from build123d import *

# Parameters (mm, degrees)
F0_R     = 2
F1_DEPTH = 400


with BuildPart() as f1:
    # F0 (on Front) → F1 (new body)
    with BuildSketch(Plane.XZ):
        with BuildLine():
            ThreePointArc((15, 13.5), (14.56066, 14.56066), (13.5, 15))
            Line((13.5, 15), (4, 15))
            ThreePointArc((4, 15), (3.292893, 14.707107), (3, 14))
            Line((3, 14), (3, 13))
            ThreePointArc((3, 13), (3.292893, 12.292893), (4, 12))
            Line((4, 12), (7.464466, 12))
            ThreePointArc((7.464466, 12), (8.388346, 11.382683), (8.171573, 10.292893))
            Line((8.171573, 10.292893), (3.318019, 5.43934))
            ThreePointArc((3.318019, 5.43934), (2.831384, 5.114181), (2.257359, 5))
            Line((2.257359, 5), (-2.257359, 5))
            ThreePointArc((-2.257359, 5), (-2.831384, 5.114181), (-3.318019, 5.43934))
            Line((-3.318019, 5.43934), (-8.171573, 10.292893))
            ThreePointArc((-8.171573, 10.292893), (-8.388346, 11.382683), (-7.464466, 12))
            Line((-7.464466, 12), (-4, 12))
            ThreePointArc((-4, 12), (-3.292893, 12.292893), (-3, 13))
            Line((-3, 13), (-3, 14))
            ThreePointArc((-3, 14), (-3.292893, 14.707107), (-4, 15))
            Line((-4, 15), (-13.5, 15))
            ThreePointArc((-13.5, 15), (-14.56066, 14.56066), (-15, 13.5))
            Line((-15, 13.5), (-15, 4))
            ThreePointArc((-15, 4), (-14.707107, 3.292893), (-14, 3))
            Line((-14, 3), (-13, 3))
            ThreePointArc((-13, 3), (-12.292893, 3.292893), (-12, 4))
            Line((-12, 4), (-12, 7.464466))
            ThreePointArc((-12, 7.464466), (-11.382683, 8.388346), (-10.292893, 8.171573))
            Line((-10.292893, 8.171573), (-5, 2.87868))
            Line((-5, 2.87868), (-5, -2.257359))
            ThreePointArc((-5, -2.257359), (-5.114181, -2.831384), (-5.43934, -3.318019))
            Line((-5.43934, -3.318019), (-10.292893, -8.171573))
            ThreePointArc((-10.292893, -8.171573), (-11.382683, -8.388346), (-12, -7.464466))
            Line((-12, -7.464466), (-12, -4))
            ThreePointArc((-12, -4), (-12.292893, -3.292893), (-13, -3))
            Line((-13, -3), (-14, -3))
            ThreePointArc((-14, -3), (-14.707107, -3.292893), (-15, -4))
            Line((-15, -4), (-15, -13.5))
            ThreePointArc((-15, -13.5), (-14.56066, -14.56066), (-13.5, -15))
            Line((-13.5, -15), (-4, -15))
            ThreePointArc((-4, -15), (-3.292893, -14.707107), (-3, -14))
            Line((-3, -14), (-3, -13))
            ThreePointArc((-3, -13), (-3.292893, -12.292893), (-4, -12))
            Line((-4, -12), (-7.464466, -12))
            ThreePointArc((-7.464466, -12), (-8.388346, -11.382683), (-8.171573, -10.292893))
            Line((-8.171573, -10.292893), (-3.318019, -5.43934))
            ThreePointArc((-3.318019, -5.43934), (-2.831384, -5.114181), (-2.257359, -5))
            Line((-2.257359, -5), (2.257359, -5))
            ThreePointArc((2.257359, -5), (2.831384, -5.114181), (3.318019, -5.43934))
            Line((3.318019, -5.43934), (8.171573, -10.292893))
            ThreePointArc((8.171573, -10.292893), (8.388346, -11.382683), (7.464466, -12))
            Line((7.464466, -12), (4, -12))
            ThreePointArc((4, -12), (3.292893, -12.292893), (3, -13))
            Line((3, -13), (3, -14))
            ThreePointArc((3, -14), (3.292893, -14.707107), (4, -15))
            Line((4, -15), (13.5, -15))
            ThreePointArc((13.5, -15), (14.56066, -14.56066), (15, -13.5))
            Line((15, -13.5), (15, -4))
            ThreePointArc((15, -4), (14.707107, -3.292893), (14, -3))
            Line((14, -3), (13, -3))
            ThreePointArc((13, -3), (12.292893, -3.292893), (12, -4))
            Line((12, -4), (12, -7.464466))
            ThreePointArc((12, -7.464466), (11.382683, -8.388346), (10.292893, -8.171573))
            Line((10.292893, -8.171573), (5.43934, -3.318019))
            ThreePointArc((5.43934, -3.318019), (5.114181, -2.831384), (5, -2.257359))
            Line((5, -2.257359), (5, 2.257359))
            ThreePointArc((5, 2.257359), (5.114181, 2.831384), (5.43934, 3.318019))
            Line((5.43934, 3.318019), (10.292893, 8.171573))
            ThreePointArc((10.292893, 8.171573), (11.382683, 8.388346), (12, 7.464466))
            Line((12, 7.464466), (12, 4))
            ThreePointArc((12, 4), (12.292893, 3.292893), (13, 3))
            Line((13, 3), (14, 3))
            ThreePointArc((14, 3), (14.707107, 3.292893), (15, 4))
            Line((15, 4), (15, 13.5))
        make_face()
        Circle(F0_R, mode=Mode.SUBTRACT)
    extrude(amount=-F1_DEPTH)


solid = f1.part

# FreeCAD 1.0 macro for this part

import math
import FreeCAD as App
import Part
import Sketcher
from FreeCAD import Vector

doc = App.newDocument("Part")
body = doc.addObject("PartDesign::Body", "Body")

# Sketch on XZ plane
sketch1 = doc.addObject("Sketcher::SketchObject", "Sketch")
body.addObject(sketch1)
sketch1.AttachmentSupport = (doc.XZ_Plane, [""])
sketch1.MapMode = "FlatFace"
sketch1.addGeometry([
    Part.ArcOfCircle(Part.Circle(Vector(13.5, 13.5, 0), Vector(0, 0, 1), 1.5), math.radians(0), math.radians(90)),  # 0
    Part.LineSegment(Vector(13.5, 15, 0), Vector(4, 15, 0)),  # 1
    Part.ArcOfCircle(Part.Circle(Vector(4, 14, 0), Vector(0, 0, 1), 1), math.radians(90), math.radians(180)),  # 2
    Part.LineSegment(Vector(3, 14, 0), Vector(3, 13, 0)),  # 3
    Part.ArcOfCircle(Part.Circle(Vector(4, 13, 0), Vector(0, 0, 1), 1), math.radians(180), math.radians(270)),  # 4
    Part.LineSegment(Vector(4, 12, 0), Vector(7.5, 12, 0)),  # 5
    Part.ArcOfCircle(Part.Circle(Vector(7.5, 11, 0), Vector(0, 0, 1), 1), math.radians(-45), math.radians(90)),  # 6
    Part.LineSegment(Vector(8.2, 10.3, 0), Vector(3.3, 5.4, 0)),  # 7
    Part.ArcOfCircle(Part.Circle(Vector(2.3, 6.5, 0), Vector(0, 0, 1), 1.5), math.radians(-90), math.radians(-45)),  # 8
    Part.LineSegment(Vector(2.3, 5, 0), Vector(-2.3, 5, 0)),  # 9
    Part.ArcOfCircle(Part.Circle(Vector(-2.3, 6.5, 0), Vector(0, 0, 1), 1.5), math.radians(-135), math.radians(-90)),  # 10
    Part.LineSegment(Vector(-3.3, 5.4, 0), Vector(-8.2, 10.3, 0)),  # 11
    Part.ArcOfCircle(Part.Circle(Vector(-7.5, 11, 0), Vector(0, 0, 1), 1), math.radians(90), math.radians(225)),  # 12
    Part.LineSegment(Vector(-7.5, 12, 0), Vector(-4, 12, 0)),  # 13
    Part.ArcOfCircle(Part.Circle(Vector(-4, 13, 0), Vector(0, 0, 1), 1), math.radians(-90), math.radians(0)),  # 14
    Part.LineSegment(Vector(-3, 13, 0), Vector(-3, 14, 0)),  # 15
    Part.ArcOfCircle(Part.Circle(Vector(-4, 14, 0), Vector(0, 0, 1), 1), math.radians(0), math.radians(90)),  # 16
    Part.LineSegment(Vector(-4, 15, 0), Vector(-13.5, 15, 0)),  # 17
    Part.ArcOfCircle(Part.Circle(Vector(-13.5, 13.5, 0), Vector(0, 0, 1), 1.5), math.radians(90), math.radians(180)),  # 18
    Part.LineSegment(Vector(-15, 13.5, 0), Vector(-15, 4, 0)),  # 19
    Part.ArcOfCircle(Part.Circle(Vector(-14, 4, 0), Vector(0, 0, 1), 1), math.radians(180), math.radians(270)),  # 20
    Part.LineSegment(Vector(-14, 3, 0), Vector(-13, 3, 0)),  # 21
    Part.ArcOfCircle(Part.Circle(Vector(-13, 4, 0), Vector(0, 0, 1), 1), math.radians(-90), math.radians(0)),  # 22
    Part.LineSegment(Vector(-12, 4, 0), Vector(-12, 7.5, 0)),  # 23
    Part.ArcOfCircle(Part.Circle(Vector(-11, 7.5, 0), Vector(0, 0, 1), 1), math.radians(45), math.radians(180)),  # 24
    Part.LineSegment(Vector(-10.3, 8.2, 0), Vector(-5, 2.9, 0)),  # 25
    Part.LineSegment(Vector(-5, 2.9, 0), Vector(-5, -2.3, 0)),  # 26
    Part.ArcOfCircle(Part.Circle(Vector(-6.5, -2.3, 0), Vector(0, 0, 1), 1.5), math.radians(-45), math.radians(0)),  # 27
    Part.LineSegment(Vector(-5.4, -3.3, 0), Vector(-10.3, -8.2, 0)),  # 28
    Part.ArcOfCircle(Part.Circle(Vector(-11, -7.5, 0), Vector(0, 0, 1), 1), math.radians(180), math.radians(315)),  # 29
    Part.LineSegment(Vector(-12, -7.5, 0), Vector(-12, -4, 0)),  # 30
    Part.ArcOfCircle(Part.Circle(Vector(-13, -4, 0), Vector(0, 0, 1), 1), math.radians(0), math.radians(90)),  # 31
    Part.LineSegment(Vector(-13, -3, 0), Vector(-14, -3, 0)),  # 32
    Part.ArcOfCircle(Part.Circle(Vector(-14, -4, 0), Vector(0, 0, 1), 1), math.radians(90), math.radians(180)),  # 33
    Part.LineSegment(Vector(-15, -4, 0), Vector(-15, -13.5, 0)),  # 34
    Part.ArcOfCircle(Part.Circle(Vector(-13.5, -13.5, 0), Vector(0, 0, 1), 1.5), math.radians(-180), math.radians(-90)),  # 35
    Part.LineSegment(Vector(-13.5, -15, 0), Vector(-4, -15, 0)),  # 36
    Part.ArcOfCircle(Part.Circle(Vector(-4, -14, 0), Vector(0, 0, 1), 1), math.radians(-90), math.radians(0)),  # 37
    Part.LineSegment(Vector(-3, -14, 0), Vector(-3, -13, 0)),  # 38
    Part.ArcOfCircle(Part.Circle(Vector(-4, -13, 0), Vector(0, 0, 1), 1), math.radians(0), math.radians(90)),  # 39
    Part.LineSegment(Vector(-4, -12, 0), Vector(-7.5, -12, 0)),  # 40
    Part.ArcOfCircle(Part.Circle(Vector(-7.5, -11, 0), Vector(0, 0, 1), 1), math.radians(135), math.radians(270)),  # 41
    Part.LineSegment(Vector(-8.2, -10.3, 0), Vector(-3.3, -5.4, 0)),  # 42
    Part.ArcOfCircle(Part.Circle(Vector(-2.3, -6.5, 0), Vector(0, 0, 1), 1.5), math.radians(90), math.radians(135)),  # 43
    Part.LineSegment(Vector(-2.3, -5, 0), Vector(2.3, -5, 0)),  # 44
    Part.ArcOfCircle(Part.Circle(Vector(2.3, -6.5, 0), Vector(0, 0, 1), 1.5), math.radians(45), math.radians(90)),  # 45
    Part.LineSegment(Vector(3.3, -5.4, 0), Vector(8.2, -10.3, 0)),  # 46
    Part.ArcOfCircle(Part.Circle(Vector(7.5, -11, 0), Vector(0, 0, 1), 1), math.radians(-90), math.radians(45)),  # 47
    Part.LineSegment(Vector(7.5, -12, 0), Vector(4, -12, 0)),  # 48
    Part.ArcOfCircle(Part.Circle(Vector(4, -13, 0), Vector(0, 0, 1), 1), math.radians(90), math.radians(180)),  # 49
    Part.LineSegment(Vector(3, -13, 0), Vector(3, -14, 0)),  # 50
    Part.ArcOfCircle(Part.Circle(Vector(4, -14, 0), Vector(0, 0, 1), 1), math.radians(180), math.radians(270)),  # 51
    Part.LineSegment(Vector(4, -15, 0), Vector(13.5, -15, 0)),  # 52
    Part.ArcOfCircle(Part.Circle(Vector(13.5, -13.5, 0), Vector(0, 0, 1), 1.5), math.radians(-90), math.radians(0)),  # 53
    Part.LineSegment(Vector(15, -13.5, 0), Vector(15, -4, 0)),  # 54
    Part.ArcOfCircle(Part.Circle(Vector(14, -4, 0), Vector(0, 0, 1), 1), math.radians(0), math.radians(90)),  # 55
    Part.LineSegment(Vector(14, -3, 0), Vector(13, -3, 0)),  # 56
    Part.ArcOfCircle(Part.Circle(Vector(13, -4, 0), Vector(0, 0, 1), 1), math.radians(90), math.radians(180)),  # 57
    Part.LineSegment(Vector(12, -4, 0), Vector(12, -7.5, 0)),  # 58
    Part.ArcOfCircle(Part.Circle(Vector(11, -7.5, 0), Vector(0, 0, 1), 1), math.radians(-135), math.radians(0)),  # 59
    Part.LineSegment(Vector(10.3, -8.2, 0), Vector(5.4, -3.3, 0)),  # 60
    Part.ArcOfCircle(Part.Circle(Vector(6.5, -2.3, 0), Vector(0, 0, 1), 1.5), math.radians(-180), math.radians(-135)),  # 61
    Part.LineSegment(Vector(5, -2.3, 0), Vector(5, 2.3, 0)),  # 62
    Part.ArcOfCircle(Part.Circle(Vector(6.5, 2.3, 0), Vector(0, 0, 1), 1.5), math.radians(135), math.radians(180)),  # 63
    Part.LineSegment(Vector(5.4, 3.3, 0), Vector(10.3, 8.2, 0)),  # 64
    Part.ArcOfCircle(Part.Circle(Vector(11, 7.5, 0), Vector(0, 0, 1), 1), math.radians(0), math.radians(135)),  # 65
    Part.LineSegment(Vector(12, 7.5, 0), Vector(12, 4, 0)),  # 66
    Part.ArcOfCircle(Part.Circle(Vector(13, 4, 0), Vector(0, 0, 1), 1), math.radians(180), math.radians(270)),  # 67
    Part.LineSegment(Vector(13, 3, 0), Vector(14, 3, 0)),  # 68
    Part.ArcOfCircle(Part.Circle(Vector(14, 4, 0), Vector(0, 0, 1), 1), math.radians(-90), math.radians(0)),  # 69
    Part.LineSegment(Vector(15, 4, 0), Vector(15, 13.5, 0)),  # 70
    Part.Circle(Vector(0, 0, 0), Vector(0, 0, 1), 2),  # 71
], False)
sketch1.addConstraint([
    Sketcher.Constraint("Tangent", 0, 2, 1, 1),
    Sketcher.Constraint("Tangent", 1, 2, 2, 1),
    Sketcher.Constraint("Tangent", 2, 2, 3, 1),
    Sketcher.Constraint("Tangent", 3, 2, 4, 1),
    Sketcher.Constraint("Tangent", 4, 2, 5, 1),
    Sketcher.Constraint("Tangent", 5, 2, 6, 2),
    Sketcher.Constraint("Tangent", 6, 1, 7, 1),
    Sketcher.Constraint("Tangent", 7, 2, 8, 2),
    Sketcher.Constraint("Tangent", 8, 1, 9, 1),
    Sketcher.Constraint("Tangent", 9, 2, 10, 2),
    Sketcher.Constraint("Tangent", 10, 1, 11, 1),
    Sketcher.Constraint("Tangent", 11, 2, 12, 2),
    Sketcher.Constraint("Tangent", 12, 1, 13, 1),
    Sketcher.Constraint("Tangent", 13, 2, 14, 1),
    Sketcher.Constraint("Tangent", 14, 2, 15, 1),
    Sketcher.Constraint("Tangent", 15, 2, 16, 1),
    Sketcher.Constraint("Tangent", 16, 2, 17, 1),
    Sketcher.Constraint("Tangent", 17, 2, 18, 1),
    Sketcher.Constraint("Tangent", 18, 2, 19, 1),
    Sketcher.Constraint("Tangent", 19, 2, 20, 1),
    Sketcher.Constraint("Tangent", 20, 2, 21, 1),
    Sketcher.Constraint("Tangent", 21, 2, 22, 1),
    Sketcher.Constraint("Tangent", 22, 2, 23, 1),
    Sketcher.Constraint("Tangent", 23, 2, 24, 2),
    Sketcher.Constraint("Tangent", 24, 1, 25, 1),
    Sketcher.Constraint("Coincident", 25, 2, 26, 1),
    Sketcher.Constraint("Tangent", 26, 2, 27, 2),
    Sketcher.Constraint("Tangent", 27, 1, 28, 1),
    Sketcher.Constraint("Tangent", 28, 2, 29, 2),
    Sketcher.Constraint("Tangent", 29, 1, 30, 1),
    Sketcher.Constraint("Tangent", 30, 2, 31, 1),
    Sketcher.Constraint("Tangent", 31, 2, 32, 1),
    Sketcher.Constraint("Tangent", 32, 2, 33, 1),
    Sketcher.Constraint("Tangent", 33, 2, 34, 1),
    Sketcher.Constraint("Tangent", 34, 2, 35, 1),
    Sketcher.Constraint("Tangent", 35, 2, 36, 1),
    Sketcher.Constraint("Tangent", 36, 2, 37, 1),
    Sketcher.Constraint("Tangent", 37, 2, 38, 1),
    Sketcher.Constraint("Tangent", 38, 2, 39, 1),
    Sketcher.Constraint("Tangent", 39, 2, 40, 1),
    Sketcher.Constraint("Tangent", 40, 2, 41, 2),
    Sketcher.Constraint("Tangent", 41, 1, 42, 1),
    Sketcher.Constraint("Tangent", 42, 2, 43, 2),
    Sketcher.Constraint("Tangent", 43, 1, 44, 1),
    Sketcher.Constraint("Tangent", 44, 2, 45, 2),
    Sketcher.Constraint("Tangent", 45, 1, 46, 1),
    Sketcher.Constraint("Tangent", 46, 2, 47, 2),
    Sketcher.Constraint("Tangent", 47, 1, 48, 1),
    Sketcher.Constraint("Tangent", 48, 2, 49, 1),
    Sketcher.Constraint("Tangent", 49, 2, 50, 1),
    Sketcher.Constraint("Tangent", 50, 2, 51, 1),
    Sketcher.Constraint("Tangent", 51, 2, 52, 1),
    Sketcher.Constraint("Tangent", 52, 2, 53, 1),
    Sketcher.Constraint("Tangent", 53, 2, 54, 1),
    Sketcher.Constraint("Tangent", 54, 2, 55, 1),
    Sketcher.Constraint("Tangent", 55, 2, 56, 1),
    Sketcher.Constraint("Tangent", 56, 2, 57, 1),
    Sketcher.Constraint("Tangent", 57, 2, 58, 1),
    Sketcher.Constraint("Tangent", 58, 2, 59, 2),
    Sketcher.Constraint("Tangent", 59, 1, 60, 1),
    Sketcher.Constraint("Tangent", 60, 2, 61, 2),
    Sketcher.Constraint("Tangent", 61, 1, 62, 1),
    Sketcher.Constraint("Tangent", 62, 2, 63, 2),
    Sketcher.Constraint("Tangent", 63, 1, 64, 1),
    Sketcher.Constraint("Tangent", 64, 2, 65, 2),
    Sketcher.Constraint("Tangent", 65, 1, 66, 1),
    Sketcher.Constraint("Tangent", 66, 2, 67, 1),
    Sketcher.Constraint("Tangent", 67, 2, 68, 1),
    Sketcher.Constraint("Tangent", 68, 2, 69, 1),
    Sketcher.Constraint("Tangent", 69, 2, 70, 1),
    Sketcher.Constraint("Tangent", 70, 2, 0, 1),
    Sketcher.Constraint("Horizontal", 1),
    Sketcher.Constraint("Vertical", 3),
    Sketcher.Constraint("Horizontal", 5),
    Sketcher.Constraint("Horizontal", 9),
    Sketcher.Constraint("Horizontal", 13),
    Sketcher.Constraint("Vertical", 15),
    Sketcher.Constraint("Horizontal", 17),
    Sketcher.Constraint("Vertical", 19),
    Sketcher.Constraint("Horizontal", 21),
    Sketcher.Constraint("Vertical", 23),
    Sketcher.Constraint("Vertical", 26),
    Sketcher.Constraint("Vertical", 30),
    Sketcher.Constraint("Horizontal", 32),
    Sketcher.Constraint("Vertical", 34),
    Sketcher.Constraint("Horizontal", 36),
    Sketcher.Constraint("Vertical", 38),
    Sketcher.Constraint("Horizontal", 40),
    Sketcher.Constraint("Horizontal", 44),
    Sketcher.Constraint("Horizontal", 48),
    Sketcher.Constraint("Vertical", 50),
    Sketcher.Constraint("Horizontal", 52),
    Sketcher.Constraint("Vertical", 54),
    Sketcher.Constraint("Horizontal", 56),
    Sketcher.Constraint("Vertical", 58),
    Sketcher.Constraint("Vertical", 62),
    Sketcher.Constraint("Vertical", 66),
    Sketcher.Constraint("Horizontal", 68),
    Sketcher.Constraint("Vertical", 70),
    Sketcher.Constraint("Coincident", 71, 3, -1, 1),
    Sketcher.Constraint("Equal", 2, 4),
    Sketcher.Constraint("Equal", 4, 6),
    Sketcher.Constraint("Equal", 0, 8),
    Sketcher.Constraint("Equal", 8, 10),
    Sketcher.Constraint("Equal", 6, 12),
    Sketcher.Constraint("Equal", 12, 14),
    Sketcher.Constraint("Equal", 14, 16),
    Sketcher.Constraint("Equal", 10, 18),
    Sketcher.Constraint("Equal", 16, 20),
    Sketcher.Constraint("Equal", 20, 22),
    Sketcher.Constraint("Equal", 22, 24),
    Sketcher.Constraint("Equal", 18, 27),
    Sketcher.Constraint("Equal", 24, 29),
    Sketcher.Constraint("Equal", 29, 31),
    Sketcher.Constraint("Equal", 31, 33),
    Sketcher.Constraint("Equal", 27, 35),
    Sketcher.Constraint("Equal", 33, 37),
    Sketcher.Constraint("Equal", 37, 39),
    Sketcher.Constraint("Equal", 39, 41),
    Sketcher.Constraint("Equal", 35, 43),
    Sketcher.Constraint("Equal", 43, 45),
    Sketcher.Constraint("Equal", 41, 47),
    Sketcher.Constraint("Equal", 47, 49),
    Sketcher.Constraint("Equal", 49, 51),
    Sketcher.Constraint("Equal", 45, 53),
    Sketcher.Constraint("Equal", 51, 55),
    Sketcher.Constraint("Equal", 55, 57),
    Sketcher.Constraint("Equal", 57, 59),
    Sketcher.Constraint("Equal", 53, 61),
    Sketcher.Constraint("Equal", 61, 63),
    Sketcher.Constraint("Equal", 59, 65),
    Sketcher.Constraint("Equal", 65, 67),
    Sketcher.Constraint("Equal", 67, 69),
    Sketcher.Constraint("Symmetric", 0, 3, 35, 3, -1, 1),
    Sketcher.Constraint("Symmetric", 4, 3, 39, 3, -1, 1),
    Sketcher.Constraint("Symmetric", 8, 3, 43, 3, -1, 1),
    Sketcher.Constraint("Symmetric", 12, 3, 47, 3, -1, 1),
    Sketcher.Constraint("Symmetric", 16, 3, 51, 3, -1, 1),
    Sketcher.Constraint("Symmetric", 20, 3, 55, 3, -1, 1),
    Sketcher.Constraint("Symmetric", 24, 3, 59, 3, -1, 1),
    Sketcher.Constraint("Symmetric", 27, 3, 63, 3, -1, 1),
    Sketcher.Constraint("Symmetric", 29, 3, 65, 3, -1, 1),
    Sketcher.Constraint("Symmetric", 6, 3, 12, 3, -2),
    Sketcher.Constraint("Symmetric", 2, 3, 16, 3, -2),
    Sketcher.Constraint("Symmetric", 33, 3, 55, 3, -2),
    Sketcher.Constraint("Symmetric", 29, 3, 59, 3, -2),
    Sketcher.Constraint("Symmetric", 42, 2, 45, 1, -2),
    Sketcher.Constraint("Perpendicular", 7, 11),
    Sketcher.Constraint("Parallel", 11, 25),
    Sketcher.Constraint("Perpendicular", 25, 28),
    Sketcher.Constraint("Perpendicular", 42, 46),
    Sketcher.Constraint("Parallel", 46, 60),
    Sketcher.Constraint("Horizontal", 22, 3, 67, 3),
    Sketcher.Constraint("Equal", 68, 3),
    Sketcher.Constraint("Equal", 52, 19),
    Sketcher.Constraint("Equal", 48, 23),
    Sketcher.Constraint("Equal", 44, 62),
    Sketcher.Constraint("Equal", 11, 28),
    Sketcher.Constraint("Diameter", 71, 4.0),
    Sketcher.Constraint("Radius", 2, 0.999999),
    Sketcher.Constraint("Radius", 0, 1.500001),
    Sketcher.Constraint("DistanceX", 21, 1, 21, 2, 1.0),
    Sketcher.Constraint("DistanceX", 1, 2, 1, 1, 9.5),
    Sketcher.Constraint("DistanceX", -1, 1, 2, 3, 3.999999),
    Sketcher.Constraint("DistanceY", -1, 1, 8, 1, 5.0),
    Sketcher.Constraint("DistanceX", 9, 2, 9, 1, 4.514718),
])
pad1 = doc.addObject("PartDesign::Pad", "Pad")
body.addObject(pad1)
pad1.Profile = sketch1
pad1.Length = 400
pad1.Reversed = True

doc.recompute()
